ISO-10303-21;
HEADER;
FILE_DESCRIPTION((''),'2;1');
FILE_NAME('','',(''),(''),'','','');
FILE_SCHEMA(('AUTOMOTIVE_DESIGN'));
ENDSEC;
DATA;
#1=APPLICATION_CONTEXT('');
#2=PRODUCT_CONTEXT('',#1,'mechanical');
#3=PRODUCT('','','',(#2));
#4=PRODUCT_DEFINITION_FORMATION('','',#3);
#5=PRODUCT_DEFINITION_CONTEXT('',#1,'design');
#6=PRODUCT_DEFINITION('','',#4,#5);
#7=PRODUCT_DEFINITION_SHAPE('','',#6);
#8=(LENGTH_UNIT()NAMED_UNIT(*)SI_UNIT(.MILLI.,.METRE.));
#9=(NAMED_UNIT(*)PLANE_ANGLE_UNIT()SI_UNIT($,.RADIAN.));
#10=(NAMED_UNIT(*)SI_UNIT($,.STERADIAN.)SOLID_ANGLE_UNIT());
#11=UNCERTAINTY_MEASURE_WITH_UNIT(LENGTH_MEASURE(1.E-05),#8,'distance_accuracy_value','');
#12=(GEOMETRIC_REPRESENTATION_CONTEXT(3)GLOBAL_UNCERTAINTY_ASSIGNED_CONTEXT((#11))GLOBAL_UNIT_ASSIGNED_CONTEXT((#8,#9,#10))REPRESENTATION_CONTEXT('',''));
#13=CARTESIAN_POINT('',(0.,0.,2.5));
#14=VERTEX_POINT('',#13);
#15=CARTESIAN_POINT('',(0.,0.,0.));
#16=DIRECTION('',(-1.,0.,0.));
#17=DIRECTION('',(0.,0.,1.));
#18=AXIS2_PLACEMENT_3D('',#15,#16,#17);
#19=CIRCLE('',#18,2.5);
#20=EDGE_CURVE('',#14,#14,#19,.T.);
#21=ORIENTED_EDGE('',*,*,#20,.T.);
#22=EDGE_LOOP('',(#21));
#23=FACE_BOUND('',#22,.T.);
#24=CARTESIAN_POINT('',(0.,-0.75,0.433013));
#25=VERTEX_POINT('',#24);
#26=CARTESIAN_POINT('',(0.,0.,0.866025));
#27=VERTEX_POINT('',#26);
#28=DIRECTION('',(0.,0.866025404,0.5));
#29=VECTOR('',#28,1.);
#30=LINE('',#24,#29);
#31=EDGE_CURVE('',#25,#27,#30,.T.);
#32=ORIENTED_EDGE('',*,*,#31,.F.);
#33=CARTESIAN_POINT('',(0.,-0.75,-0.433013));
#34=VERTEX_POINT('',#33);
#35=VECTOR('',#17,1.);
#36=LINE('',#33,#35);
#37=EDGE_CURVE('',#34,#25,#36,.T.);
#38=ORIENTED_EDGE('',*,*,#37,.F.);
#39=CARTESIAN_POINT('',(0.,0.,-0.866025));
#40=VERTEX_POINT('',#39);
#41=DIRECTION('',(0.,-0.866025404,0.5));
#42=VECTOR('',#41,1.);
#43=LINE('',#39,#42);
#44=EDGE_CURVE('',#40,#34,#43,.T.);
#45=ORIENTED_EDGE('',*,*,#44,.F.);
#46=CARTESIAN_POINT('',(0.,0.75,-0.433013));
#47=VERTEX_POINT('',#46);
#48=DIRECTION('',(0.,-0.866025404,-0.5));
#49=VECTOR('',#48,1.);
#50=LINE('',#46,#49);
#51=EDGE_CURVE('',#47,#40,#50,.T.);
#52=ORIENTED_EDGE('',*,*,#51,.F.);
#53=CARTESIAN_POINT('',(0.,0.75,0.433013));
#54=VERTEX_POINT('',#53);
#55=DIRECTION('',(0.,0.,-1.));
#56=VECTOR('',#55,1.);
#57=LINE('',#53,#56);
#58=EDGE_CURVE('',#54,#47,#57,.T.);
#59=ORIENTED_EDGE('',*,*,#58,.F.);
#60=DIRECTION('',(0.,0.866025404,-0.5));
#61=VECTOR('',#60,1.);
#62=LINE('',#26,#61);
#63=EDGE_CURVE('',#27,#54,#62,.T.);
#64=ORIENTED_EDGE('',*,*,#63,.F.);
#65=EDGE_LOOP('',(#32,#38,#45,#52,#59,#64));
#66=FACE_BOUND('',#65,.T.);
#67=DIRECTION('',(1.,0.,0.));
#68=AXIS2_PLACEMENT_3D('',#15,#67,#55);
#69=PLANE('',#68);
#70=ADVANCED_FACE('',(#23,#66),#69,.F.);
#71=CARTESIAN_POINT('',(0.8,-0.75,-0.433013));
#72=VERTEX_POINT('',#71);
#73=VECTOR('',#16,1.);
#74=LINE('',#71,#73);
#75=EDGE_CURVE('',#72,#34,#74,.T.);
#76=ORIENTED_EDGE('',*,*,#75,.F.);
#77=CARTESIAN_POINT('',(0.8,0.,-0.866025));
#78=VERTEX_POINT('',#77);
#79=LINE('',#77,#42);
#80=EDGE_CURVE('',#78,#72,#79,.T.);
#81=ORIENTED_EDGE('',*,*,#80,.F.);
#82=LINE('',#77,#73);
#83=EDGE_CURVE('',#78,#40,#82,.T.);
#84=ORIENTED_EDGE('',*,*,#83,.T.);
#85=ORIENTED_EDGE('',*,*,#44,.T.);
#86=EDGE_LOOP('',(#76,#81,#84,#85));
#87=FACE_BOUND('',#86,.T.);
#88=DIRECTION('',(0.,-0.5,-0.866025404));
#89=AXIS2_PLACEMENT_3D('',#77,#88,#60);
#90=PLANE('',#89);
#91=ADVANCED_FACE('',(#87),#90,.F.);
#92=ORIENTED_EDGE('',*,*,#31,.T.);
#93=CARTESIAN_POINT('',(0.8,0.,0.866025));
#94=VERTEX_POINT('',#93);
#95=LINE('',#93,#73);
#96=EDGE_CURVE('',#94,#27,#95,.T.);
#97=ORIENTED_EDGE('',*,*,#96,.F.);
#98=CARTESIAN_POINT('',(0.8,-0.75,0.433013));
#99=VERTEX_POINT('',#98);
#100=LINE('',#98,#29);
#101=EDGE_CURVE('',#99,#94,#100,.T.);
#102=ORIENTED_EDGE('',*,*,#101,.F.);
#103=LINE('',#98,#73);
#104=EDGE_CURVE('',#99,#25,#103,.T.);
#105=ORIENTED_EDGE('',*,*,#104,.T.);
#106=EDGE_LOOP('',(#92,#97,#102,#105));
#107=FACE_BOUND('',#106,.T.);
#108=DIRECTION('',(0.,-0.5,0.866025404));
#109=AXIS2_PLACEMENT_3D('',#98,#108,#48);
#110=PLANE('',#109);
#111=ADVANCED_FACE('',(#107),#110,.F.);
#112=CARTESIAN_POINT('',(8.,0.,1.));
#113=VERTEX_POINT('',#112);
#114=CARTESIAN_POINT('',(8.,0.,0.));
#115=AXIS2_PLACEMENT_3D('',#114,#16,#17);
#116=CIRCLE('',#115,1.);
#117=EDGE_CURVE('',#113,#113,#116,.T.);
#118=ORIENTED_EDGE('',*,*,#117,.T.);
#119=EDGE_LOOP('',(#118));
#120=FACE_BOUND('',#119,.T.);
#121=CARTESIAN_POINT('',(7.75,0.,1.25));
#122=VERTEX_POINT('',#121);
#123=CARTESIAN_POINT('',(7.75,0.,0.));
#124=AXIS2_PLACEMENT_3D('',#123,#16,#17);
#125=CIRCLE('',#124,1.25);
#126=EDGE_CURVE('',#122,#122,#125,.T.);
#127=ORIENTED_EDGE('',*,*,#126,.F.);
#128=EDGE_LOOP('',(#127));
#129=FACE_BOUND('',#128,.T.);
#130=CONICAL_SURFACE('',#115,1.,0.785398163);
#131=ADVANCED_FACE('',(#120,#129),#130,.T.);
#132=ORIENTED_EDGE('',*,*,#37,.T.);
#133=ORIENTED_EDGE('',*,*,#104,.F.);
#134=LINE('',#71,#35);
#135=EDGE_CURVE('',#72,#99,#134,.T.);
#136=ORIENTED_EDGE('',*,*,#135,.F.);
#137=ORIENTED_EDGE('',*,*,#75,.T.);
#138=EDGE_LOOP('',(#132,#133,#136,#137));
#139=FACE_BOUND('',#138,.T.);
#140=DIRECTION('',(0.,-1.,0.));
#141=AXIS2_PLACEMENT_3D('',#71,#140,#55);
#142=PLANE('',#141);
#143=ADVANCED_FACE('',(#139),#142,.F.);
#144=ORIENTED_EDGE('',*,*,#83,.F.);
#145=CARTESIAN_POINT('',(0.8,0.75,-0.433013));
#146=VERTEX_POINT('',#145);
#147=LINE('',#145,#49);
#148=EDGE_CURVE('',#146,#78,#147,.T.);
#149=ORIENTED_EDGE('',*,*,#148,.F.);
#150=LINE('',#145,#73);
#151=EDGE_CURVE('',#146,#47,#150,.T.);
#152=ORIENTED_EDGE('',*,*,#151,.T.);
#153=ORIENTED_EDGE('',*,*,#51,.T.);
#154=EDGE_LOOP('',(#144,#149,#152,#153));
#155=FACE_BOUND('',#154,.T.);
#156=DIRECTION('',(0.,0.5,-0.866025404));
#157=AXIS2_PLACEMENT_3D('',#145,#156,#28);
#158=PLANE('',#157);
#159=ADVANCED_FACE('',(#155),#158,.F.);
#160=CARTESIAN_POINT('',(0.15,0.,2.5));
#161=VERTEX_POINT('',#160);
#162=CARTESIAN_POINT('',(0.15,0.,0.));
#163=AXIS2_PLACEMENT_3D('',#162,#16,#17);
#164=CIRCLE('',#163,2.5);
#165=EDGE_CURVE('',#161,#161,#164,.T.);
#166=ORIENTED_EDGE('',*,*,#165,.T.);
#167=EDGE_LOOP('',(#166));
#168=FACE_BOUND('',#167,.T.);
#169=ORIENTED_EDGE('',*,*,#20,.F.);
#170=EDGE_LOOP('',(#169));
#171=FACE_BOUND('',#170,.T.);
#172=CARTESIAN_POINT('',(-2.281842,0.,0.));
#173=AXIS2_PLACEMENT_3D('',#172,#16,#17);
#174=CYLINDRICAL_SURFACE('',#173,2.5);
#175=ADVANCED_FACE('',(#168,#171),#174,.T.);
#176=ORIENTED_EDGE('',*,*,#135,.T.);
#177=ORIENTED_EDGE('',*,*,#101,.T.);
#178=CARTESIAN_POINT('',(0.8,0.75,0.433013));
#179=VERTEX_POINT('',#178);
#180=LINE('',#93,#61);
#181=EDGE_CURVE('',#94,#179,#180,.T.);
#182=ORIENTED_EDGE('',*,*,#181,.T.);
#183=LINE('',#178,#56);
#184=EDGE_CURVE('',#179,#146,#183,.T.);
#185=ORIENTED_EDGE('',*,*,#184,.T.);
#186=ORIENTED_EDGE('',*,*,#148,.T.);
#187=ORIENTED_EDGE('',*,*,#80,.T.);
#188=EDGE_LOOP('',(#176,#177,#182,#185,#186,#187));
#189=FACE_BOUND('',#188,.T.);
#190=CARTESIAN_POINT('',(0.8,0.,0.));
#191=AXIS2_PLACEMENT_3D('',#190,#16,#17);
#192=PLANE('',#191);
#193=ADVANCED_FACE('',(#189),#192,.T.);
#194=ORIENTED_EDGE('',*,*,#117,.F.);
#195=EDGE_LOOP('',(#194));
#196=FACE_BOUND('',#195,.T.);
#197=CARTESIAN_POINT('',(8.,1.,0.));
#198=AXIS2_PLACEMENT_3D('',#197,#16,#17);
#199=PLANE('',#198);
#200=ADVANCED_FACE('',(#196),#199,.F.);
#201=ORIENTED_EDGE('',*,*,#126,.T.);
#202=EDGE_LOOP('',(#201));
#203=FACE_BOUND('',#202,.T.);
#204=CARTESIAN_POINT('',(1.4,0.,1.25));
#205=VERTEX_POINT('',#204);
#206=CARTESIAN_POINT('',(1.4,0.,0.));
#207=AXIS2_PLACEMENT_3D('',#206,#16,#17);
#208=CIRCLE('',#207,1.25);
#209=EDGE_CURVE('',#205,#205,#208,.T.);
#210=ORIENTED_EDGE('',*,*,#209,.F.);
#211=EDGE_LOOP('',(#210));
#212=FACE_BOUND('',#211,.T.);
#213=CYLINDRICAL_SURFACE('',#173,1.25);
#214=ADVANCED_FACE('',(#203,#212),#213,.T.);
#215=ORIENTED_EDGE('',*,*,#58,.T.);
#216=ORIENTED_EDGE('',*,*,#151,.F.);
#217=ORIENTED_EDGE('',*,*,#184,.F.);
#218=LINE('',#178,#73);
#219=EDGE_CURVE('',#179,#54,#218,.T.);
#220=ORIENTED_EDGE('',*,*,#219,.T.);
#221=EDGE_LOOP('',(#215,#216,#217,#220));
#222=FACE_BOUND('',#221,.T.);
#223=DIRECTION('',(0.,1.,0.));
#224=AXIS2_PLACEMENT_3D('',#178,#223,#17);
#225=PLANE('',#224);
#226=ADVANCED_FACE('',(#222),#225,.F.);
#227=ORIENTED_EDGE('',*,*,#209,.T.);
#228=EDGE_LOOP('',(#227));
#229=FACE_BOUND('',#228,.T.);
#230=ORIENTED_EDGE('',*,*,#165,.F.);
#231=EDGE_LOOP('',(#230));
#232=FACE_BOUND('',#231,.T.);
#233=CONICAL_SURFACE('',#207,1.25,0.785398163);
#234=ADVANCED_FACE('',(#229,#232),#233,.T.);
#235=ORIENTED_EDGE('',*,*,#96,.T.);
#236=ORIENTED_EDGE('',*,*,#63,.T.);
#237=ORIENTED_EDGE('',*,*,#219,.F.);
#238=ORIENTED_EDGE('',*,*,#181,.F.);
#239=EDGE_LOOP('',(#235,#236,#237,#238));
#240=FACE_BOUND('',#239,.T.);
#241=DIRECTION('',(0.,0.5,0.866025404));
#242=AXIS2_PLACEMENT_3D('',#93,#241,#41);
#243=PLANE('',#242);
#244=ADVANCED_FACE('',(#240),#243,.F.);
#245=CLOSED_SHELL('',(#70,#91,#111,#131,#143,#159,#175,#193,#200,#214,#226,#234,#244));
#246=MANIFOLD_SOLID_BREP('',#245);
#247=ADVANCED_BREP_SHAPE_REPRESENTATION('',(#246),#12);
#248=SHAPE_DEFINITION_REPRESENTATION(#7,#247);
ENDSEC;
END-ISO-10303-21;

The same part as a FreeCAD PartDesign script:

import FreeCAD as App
import Part
import Sketcher
Q = App.Units.Quantity


def add_polygon(sketch, points):
    """Adds a closed chain of lines whose ends are joined by coincident constraints."""
    first, n = sketch.GeometryCount, len(points)
    for a, b in zip(points, points[1:] + points[:1]):
        sketch.addGeometry(Part.LineSegment(App.Vector(*a, 0), App.Vector(*b, 0)), False)
    for i in range(n):
        sketch.addConstraint(Sketcher.Constraint("Coincident", first + i, 2, first + (i + 1) % n, 1))

doc = App.newDocument("Part")
params = doc.addObject("Spreadsheet::Sheet", "Params")
for row, (alias, value) in enumerate([
    ("sketch1_width", "8 mm"),
    ("sketch1_height", "1 mm"),
    ("sketch1_height2", "2.5 mm"),
    ("sketch1_width2", "6.35 mm"),
    ("revolution_angle", "360 deg"),
    ("pocket1_length", "0.8 mm"),
], start=1):
    params.set(f"A{row}", alias)
    params.set(f"B{row}", "=" + value)
    params.setAlias(f"B{row}", alias)

body = doc.addObject("PartDesign::Body", "Body")

# Sketch on XY plane
sketch1 = body.newObject("Sketcher::SketchObject", "Sketch")
sketch1.AttachmentSupport = (doc.getObject("XY_Plane"), [""])
sketch1.MapMode = "FlatFace"
add_polygon(sketch1, [(0, 2.5), (0, 0), (8, 0), (8, 1), (7.75, 1.25), (1.4, 1.25), (0.15, 2.5)])  # lines 0-6
sketch1.addConstraint([
    Sketcher.Constraint("Vertical", 0),
    Sketcher.Constraint("Horizontal", 1),
    Sketcher.Constraint("Vertical", 2),
    Sketcher.Constraint("Horizontal", 4),
    Sketcher.Constraint("Horizontal", 6),
    Sketcher.Constraint("Coincident", 0, 2, -1, 1),
    Sketcher.Constraint("Parallel", 3, 5),
    Sketcher.Constraint("DistanceX", 1, 1, 1, 2, 8.0),
    Sketcher.Constraint("DistanceY", 2, 1, 2, 2, 1.0),
    Sketcher.Constraint("Angle", 3, Q("135 deg")),
    Sketcher.Constraint("DistanceY", 0, 2, 0, 1, 2.5),
    Sketcher.Constraint("DistanceX", 4, 2, 4, 1, 6.35),
    Sketcher.Constraint("DistanceX", -1, 1, 4, 2, 1.4),
])
sketch1.setExpression("Constraints[14]", "Params.sketch1_width")
sketch1.setExpression("Constraints[15]", "Params.sketch1_height")
sketch1.setExpression("Constraints[17]", "Params.sketch1_height2")
sketch1.setExpression("Constraints[18]", "Params.sketch1_width2")
revolution = body.newObject("PartDesign::Revolution", "Revolution")
revolution.Profile = sketch1
revolution.ReferenceAxis = (sketch1, ["H_Axis"])
revolution.setExpression("Angle", "Params.revolution_angle")

# Sketch on YZ plane
sketch2 = body.newObject("Sketcher::SketchObject", "Sketch001")
sketch2.AttachmentSupport = (doc.getObject("YZ_Plane"), [""])
sketch2.MapMode = "FlatFace"
add_polygon(sketch2, [(-0.8, 0.4), (0, 0.9), (0.8, 0.4), (0.8, -0.4), (0, -0.9), (-0.8, -0.4)])  # lines 0-5
sketch2.addConstraint([
    Sketcher.Constraint("Vertical", 2),
    Sketcher.Constraint("Vertical", 5),
    Sketcher.Constraint("Symmetric", 0, 2, 3, 2, -1, 1),
    Sketcher.Constraint("Symmetric", 1, 2, 4, 2, -1, 1),
    Sketcher.Constraint("PointOnObject", 0, 2, -2),
    Sketcher.Constraint("Parallel", 0, 3),
    Sketcher.Constraint("Horizontal", 2, 2, 4, 2),
    Sketcher.Constraint("Angle", 0, Q("30 deg")),
    Sketcher.Constraint("DistanceX", 4, 2, 2, 2, 1.5),
    Sketcher.Constraint("DistanceY", 2, 2, 2, 1, 0.866025),
])
pocket1 = body.newObject("PartDesign::Pocket", "Pocket")
pocket1.Profile = sketch2
pocket1.setExpression("Length", "Params.pocket1_length")
pocket1.Reversed = True

doc.recompute()
